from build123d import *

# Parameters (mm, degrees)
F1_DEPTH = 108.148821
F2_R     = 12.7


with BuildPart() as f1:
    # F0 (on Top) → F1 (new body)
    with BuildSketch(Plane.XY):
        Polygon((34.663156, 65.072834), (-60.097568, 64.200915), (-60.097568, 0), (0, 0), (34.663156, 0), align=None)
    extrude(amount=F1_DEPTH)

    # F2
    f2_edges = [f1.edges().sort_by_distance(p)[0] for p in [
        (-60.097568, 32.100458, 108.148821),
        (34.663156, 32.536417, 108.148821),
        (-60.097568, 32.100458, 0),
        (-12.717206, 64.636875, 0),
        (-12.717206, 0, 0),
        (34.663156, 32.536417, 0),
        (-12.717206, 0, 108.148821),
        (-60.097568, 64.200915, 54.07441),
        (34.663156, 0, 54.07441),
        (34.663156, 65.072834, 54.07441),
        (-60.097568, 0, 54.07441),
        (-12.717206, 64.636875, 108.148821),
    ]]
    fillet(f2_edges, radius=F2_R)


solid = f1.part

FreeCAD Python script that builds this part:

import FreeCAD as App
import Part
import Sketcher

V = App.Vector
Q = App.Units.Quantity


def add_polygon(sketch, points):
    """Adds a closed chain of lines whose ends are joined by coincident constraints."""
    first, n = sketch.GeometryCount, len(points)
    for a, b in zip(points, points[1:] + points[:1]):
        sketch.addGeometry(Part.LineSegment(App.Vector(*a, 0), App.Vector(*b, 0)), False)
    for i in range(n):
        sketch.addConstraint(Sketcher.Constraint("Coincident", first + i, 2, first + (i + 1) % n, 1))

doc = App.newDocument("Part")
params = doc.addObject("Spreadsheet::Sheet", "Params")
for row, (alias, value) in enumerate([
    ("pad1_length", "108.148821 mm"),
    ("fillet_radius", "0.5 in"),
], start=1):
    params.set(f"A{row}", alias)
    params.set(f"B{row}", "=" + value)
    params.setAlias(f"B{row}", alias)

body = doc.addObject("PartDesign::Body", "Body")

sketch1 = body.newObject("Sketcher::SketchObject", "Sketch")
sketch1.AttachmentSupport = (doc.getObject("XY_Plane"), [""])
sketch1.MapMode = "FlatFace"
add_polygon(sketch1, [(35, 65), (-60, 64), (-60, 0), (35, 0)])
sketch1.addConstraint(Sketcher.Constraint("Vertical", 1))
sketch1.addConstraint(Sketcher.Constraint("Horizontal", 2))
sketch1.addConstraint(Sketcher.Constraint("Vertical", 3))
sketch1.addConstraint(Sketcher.Constraint("PointOnObject", 1, 2, -1))
sketch1.addConstraint(Sketcher.Constraint("DistanceX", 2, 1, 2, 2, Q("94.760724 mm")))
sketch1.addConstraint(Sketcher.Constraint("DistanceY", 1, 2, 1, 1, Q("64.200915 mm")))
sketch1.addConstraint(Sketcher.Constraint("DistanceY", 3, 1, 3, 2, Q("65.072834 mm")))
sketch1.addConstraint(Sketcher.Constraint("DistanceX", 0, 2, -1, 1, Q("60.097568 mm")))
pad1 = body.newObject("PartDesign::Pad", "Pad")
pad1.Profile = sketch1
pad1.setExpression("Length", "Params.pad1_length")
doc.recompute()

fillet = body.newObject("PartDesign::Fillet", "Fillet")
fillet.Base = (pad1, ["Edge1"])
fillet.UseAllEdges = True
fillet.setExpression("Radius", "Params.fillet_radius")

doc.recompute()
